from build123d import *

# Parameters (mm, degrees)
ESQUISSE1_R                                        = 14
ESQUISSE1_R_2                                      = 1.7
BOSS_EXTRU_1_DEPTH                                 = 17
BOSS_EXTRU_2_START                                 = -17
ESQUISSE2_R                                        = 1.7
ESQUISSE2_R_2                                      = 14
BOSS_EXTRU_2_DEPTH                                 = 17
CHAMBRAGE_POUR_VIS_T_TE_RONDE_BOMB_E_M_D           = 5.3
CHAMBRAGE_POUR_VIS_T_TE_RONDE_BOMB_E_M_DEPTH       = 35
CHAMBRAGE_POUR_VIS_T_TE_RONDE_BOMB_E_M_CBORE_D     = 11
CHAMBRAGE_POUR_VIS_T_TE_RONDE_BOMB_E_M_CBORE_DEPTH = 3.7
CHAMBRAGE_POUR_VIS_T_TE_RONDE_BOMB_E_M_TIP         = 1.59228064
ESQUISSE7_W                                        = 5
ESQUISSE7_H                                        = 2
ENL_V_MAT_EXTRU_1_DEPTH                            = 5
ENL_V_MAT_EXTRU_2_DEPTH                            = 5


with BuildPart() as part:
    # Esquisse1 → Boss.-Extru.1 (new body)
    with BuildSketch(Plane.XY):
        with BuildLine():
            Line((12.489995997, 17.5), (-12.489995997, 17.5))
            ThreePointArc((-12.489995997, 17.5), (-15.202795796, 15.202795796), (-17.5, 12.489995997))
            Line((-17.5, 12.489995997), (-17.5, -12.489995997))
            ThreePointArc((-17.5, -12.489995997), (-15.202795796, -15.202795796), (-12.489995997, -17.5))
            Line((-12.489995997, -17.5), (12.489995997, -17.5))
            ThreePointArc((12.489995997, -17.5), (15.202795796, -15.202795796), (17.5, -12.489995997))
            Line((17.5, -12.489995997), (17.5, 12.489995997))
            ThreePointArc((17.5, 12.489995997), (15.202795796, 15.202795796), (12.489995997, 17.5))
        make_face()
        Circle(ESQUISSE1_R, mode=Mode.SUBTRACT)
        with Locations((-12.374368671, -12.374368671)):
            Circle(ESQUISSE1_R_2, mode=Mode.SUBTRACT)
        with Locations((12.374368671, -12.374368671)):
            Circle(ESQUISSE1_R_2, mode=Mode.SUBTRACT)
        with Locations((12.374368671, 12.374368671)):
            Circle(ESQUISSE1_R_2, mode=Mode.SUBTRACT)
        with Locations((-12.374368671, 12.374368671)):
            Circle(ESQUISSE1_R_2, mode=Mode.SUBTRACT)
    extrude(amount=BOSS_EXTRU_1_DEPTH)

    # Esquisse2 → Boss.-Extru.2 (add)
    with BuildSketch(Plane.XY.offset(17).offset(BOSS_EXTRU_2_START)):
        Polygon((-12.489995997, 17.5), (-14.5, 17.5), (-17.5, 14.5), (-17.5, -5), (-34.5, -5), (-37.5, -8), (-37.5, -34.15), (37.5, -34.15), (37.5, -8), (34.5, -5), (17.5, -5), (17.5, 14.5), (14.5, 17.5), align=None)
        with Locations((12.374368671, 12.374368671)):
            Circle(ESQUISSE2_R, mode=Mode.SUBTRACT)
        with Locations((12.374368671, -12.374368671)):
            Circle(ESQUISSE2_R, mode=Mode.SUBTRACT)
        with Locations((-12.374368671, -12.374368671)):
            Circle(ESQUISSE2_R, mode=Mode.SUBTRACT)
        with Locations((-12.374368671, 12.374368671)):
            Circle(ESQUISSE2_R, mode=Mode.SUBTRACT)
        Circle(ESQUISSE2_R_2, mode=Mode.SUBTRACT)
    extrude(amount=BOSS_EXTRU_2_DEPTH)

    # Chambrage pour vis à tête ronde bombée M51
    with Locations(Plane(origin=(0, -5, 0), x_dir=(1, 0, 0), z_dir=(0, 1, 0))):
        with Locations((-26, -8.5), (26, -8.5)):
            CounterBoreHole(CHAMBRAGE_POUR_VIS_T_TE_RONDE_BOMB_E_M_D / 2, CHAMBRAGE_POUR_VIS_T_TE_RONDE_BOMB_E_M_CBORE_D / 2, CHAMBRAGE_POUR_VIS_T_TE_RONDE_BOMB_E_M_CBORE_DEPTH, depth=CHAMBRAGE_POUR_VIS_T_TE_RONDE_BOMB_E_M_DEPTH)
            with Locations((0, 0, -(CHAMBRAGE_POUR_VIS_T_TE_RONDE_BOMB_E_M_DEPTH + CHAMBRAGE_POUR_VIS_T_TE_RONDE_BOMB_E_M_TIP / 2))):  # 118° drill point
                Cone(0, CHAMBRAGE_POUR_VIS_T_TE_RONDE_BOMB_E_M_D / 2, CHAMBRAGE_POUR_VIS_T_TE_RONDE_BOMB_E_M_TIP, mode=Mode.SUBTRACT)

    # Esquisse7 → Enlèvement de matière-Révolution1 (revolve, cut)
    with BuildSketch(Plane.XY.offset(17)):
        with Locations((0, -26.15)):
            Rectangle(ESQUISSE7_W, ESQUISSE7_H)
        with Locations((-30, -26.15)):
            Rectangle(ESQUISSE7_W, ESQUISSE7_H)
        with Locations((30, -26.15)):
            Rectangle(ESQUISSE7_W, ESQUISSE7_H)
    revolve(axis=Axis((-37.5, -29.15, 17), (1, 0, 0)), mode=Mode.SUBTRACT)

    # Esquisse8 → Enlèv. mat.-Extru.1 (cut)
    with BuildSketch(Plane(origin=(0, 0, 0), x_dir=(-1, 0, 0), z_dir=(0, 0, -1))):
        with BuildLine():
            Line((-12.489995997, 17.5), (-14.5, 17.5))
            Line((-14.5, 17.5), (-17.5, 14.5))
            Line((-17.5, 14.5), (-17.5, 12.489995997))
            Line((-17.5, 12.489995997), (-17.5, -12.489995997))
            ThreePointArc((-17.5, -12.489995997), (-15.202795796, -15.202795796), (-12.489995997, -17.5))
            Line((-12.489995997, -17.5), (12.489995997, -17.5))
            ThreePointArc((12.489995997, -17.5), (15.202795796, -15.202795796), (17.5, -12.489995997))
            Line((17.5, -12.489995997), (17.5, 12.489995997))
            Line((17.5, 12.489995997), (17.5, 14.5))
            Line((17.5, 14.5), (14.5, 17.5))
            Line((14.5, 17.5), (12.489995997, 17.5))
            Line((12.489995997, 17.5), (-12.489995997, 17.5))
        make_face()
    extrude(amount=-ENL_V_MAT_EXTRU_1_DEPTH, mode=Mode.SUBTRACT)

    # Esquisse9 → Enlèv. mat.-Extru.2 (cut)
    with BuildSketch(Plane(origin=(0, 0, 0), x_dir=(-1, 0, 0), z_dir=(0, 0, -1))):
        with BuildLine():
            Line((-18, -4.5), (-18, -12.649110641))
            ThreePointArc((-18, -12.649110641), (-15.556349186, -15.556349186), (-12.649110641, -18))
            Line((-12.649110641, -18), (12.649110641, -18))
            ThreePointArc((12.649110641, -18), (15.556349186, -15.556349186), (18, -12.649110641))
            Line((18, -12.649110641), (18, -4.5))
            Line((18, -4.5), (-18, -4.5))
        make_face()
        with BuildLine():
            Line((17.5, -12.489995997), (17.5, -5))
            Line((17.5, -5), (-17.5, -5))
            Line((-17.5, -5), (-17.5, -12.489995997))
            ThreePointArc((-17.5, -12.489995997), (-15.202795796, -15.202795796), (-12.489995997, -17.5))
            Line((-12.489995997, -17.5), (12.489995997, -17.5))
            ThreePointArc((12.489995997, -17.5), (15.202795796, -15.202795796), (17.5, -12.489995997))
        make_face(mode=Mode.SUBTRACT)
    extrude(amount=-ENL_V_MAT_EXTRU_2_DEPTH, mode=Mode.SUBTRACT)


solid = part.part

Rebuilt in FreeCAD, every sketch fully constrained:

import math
import FreeCAD as App
import Part
import Sketcher
from FreeCAD import Vector
Q = App.Units.Quantity


def add_polygon(sketch, points):
    """Adds a closed chain of lines whose ends are joined by coincident constraints."""
    first, n = sketch.GeometryCount, len(points)
    for a, b in zip(points, points[1:] + points[:1]):
        sketch.addGeometry(Part.LineSegment(App.Vector(*a, 0), App.Vector(*b, 0)), False)
    for i in range(n):
        sketch.addConstraint(Sketcher.Constraint("Coincident", first + i, 2, first + (i + 1) % n, 1))

doc = App.newDocument("Part")
body = doc.addObject("PartDesign::Body", "Body")

sketch1 = doc.addObject("Sketcher::SketchObject", "Sketch")
body.addObject(sketch1)
sketch1.AttachmentSupport = (doc.XY_Plane, [""])
sketch1.MapMode = "FlatFace"
sketch1.addGeometry([
    Part.LineSegment(Vector(12.5, 17.5, 0), Vector(-12.5, 17.5, 0)),
    Part.ArcOfCircle(Part.Circle(Vector(0, 0, 0), Vector(0, 0, 1), 21.5), math.radians(125.52), math.radians(144.48)),
    Part.LineSegment(Vector(-17.5, 12.5, 0), Vector(-17.5, -12.5, 0)),
    Part.ArcOfCircle(Part.Circle(Vector(0, 0, 0), Vector(0, 0, 1), 21.5), math.radians(-144.48), math.radians(-125.52)),
    Part.LineSegment(Vector(-12.5, -17.5, 0), Vector(12.5, -17.5, 0)),
    Part.ArcOfCircle(Part.Circle(Vector(0, 0, 0), Vector(0, 0, 1), 21.5), math.radians(-54.48), math.radians(-35.52)),
    Part.LineSegment(Vector(17.5, -12.5, 0), Vector(17.5, 12.5, 0)),
    Part.ArcOfCircle(Part.Circle(Vector(0, 0, 0), Vector(0, 0, 1), 21.5), math.radians(35.52), math.radians(54.48)),
    Part.Circle(Vector(-12.4, -12.4, 0), Vector(0, 0, 1), 1.7),
    Part.Circle(Vector(0, 0, 0), Vector(0, 0, 1), 14),
    Part.Circle(Vector(12.4, -12.4, 0), Vector(0, 0, 1), 1.7),
    Part.Circle(Vector(-12.4, 12.4, 0), Vector(0, 0, 1), 1.7),
    Part.Circle(Vector(12.4, 12.4, 0), Vector(0, 0, 1), 1.7),
], False)
sketch1.addConstraint([
    Sketcher.Constraint("Coincident", 0, 2, 1, 1),
    Sketcher.Constraint("Coincident", 1, 2, 2, 1),
    Sketcher.Constraint("Coincident", 2, 2, 3, 1),
    Sketcher.Constraint("Coincident", 3, 2, 4, 1),
    Sketcher.Constraint("Coincident", 4, 2, 5, 1),
    Sketcher.Constraint("Coincident", 5, 2, 6, 1),
    Sketcher.Constraint("Coincident", 6, 2, 7, 1),
    Sketcher.Constraint("Coincident", 7, 2, 0, 1),
    Sketcher.Constraint("Horizontal", 0),
    Sketcher.Constraint("Vertical", 2),
    Sketcher.Constraint("Horizontal", 4),
    Sketcher.Constraint("Vertical", 6),
    Sketcher.Constraint("Coincident", 1, 3, -1, 1),
    Sketcher.Constraint("Coincident", 3, 3, -1, 1),
    Sketcher.Constraint("Coincident", 5, 3, -1, 1),
    Sketcher.Constraint("Coincident", 7, 3, -1, 1),
    Sketcher.Constraint("Coincident", 9, 3, -1, 1),
    Sketcher.Constraint("Equal", 1, 3),
    Sketcher.Constraint("Equal", 3, 5),
    Sketcher.Constraint("Equal", 5, 7),
    Sketcher.Constraint("Equal", 8, 10),
    Sketcher.Constraint("Equal", 10, 11),
    Sketcher.Constraint("Equal", 11, 12),
    Sketcher.Constraint("Symmetric", 10, 3, 11, 3, -1, 1),
    Sketcher.Constraint("Symmetric", 8, 3, 12, 3, -1, 1),
    Sketcher.Constraint("Symmetric", 8, 3, 10, 3, -2),
    Sketcher.Constraint("Horizontal", 2, 2, 5, 2),
    Sketcher.Constraint("Vertical", 0, 2, 3, 2),
    Sketcher.Constraint("Equal", 4, 2),
    Sketcher.Constraint("Diameter", 9, Q("28 mm")),
    Sketcher.Constraint("Diameter", 8, Q("3.4 mm")),
    Sketcher.Constraint("Radius", 1, Q("21.5 mm")),
    Sketcher.Constraint("DistanceY", -1, 1, 0, 2, Q("17.5 mm")),
    Sketcher.Constraint("DistanceX", 8, 3, -1, 1, Q("12.374369 mm")),
    Sketcher.Constraint("DistanceY", 8, 3, -1, 1, Q("12.374369 mm")),
])
pad1 = doc.addObject("PartDesign::Pad", "Pad")
body.addObject(pad1)
pad1.Profile = sketch1
pad1.Length = 17

sketch2 = doc.addObject("Sketcher::SketchObject", "Sketch001")
body.addObject(sketch2)
sketch2.AttachmentSupport = (doc.XY_Plane, [""])
sketch2.MapMode = "FlatFace"
add_polygon(sketch2, [(-14.5, 17.5), (-17.5, 14.5), (-17.5, -5), (-34.5, -5), (-37.5, -8), (-37.5, -34.1), (37.5, -34.1), (37.5, -8), (34.5, -5), (17.5, -5), (17.5, 14.5), (14.5, 17.5)])
sketch2.addGeometry(Part.Circle(Vector(-12.4, -12.4, 0), Vector(0, 0, 1), 1.7), False)
sketch2.addGeometry(Part.Circle(Vector(0, 0, 0), Vector(0, 0, 1), 14), False)
sketch2.addGeometry(Part.Circle(Vector(12.4, -12.4, 0), Vector(0, 0, 1), 1.7), False)
sketch2.addGeometry(Part.Circle(Vector(-12.4, 12.4, 0), Vector(0, 0, 1), 1.7), False)
sketch2.addGeometry(Part.Circle(Vector(12.4, 12.4, 0), Vector(0, 0, 1), 1.7), False)
sketch2.addConstraint([
    Sketcher.Constraint("Vertical", 1),
    Sketcher.Constraint("Horizontal", 2),
    Sketcher.Constraint("Vertical", 4),
    Sketcher.Constraint("Horizontal", 5),
    Sketcher.Constraint("Vertical", 6),
    Sketcher.Constraint("Horizontal", 8),
    Sketcher.Constraint("Vertical", 9),
    Sketcher.Constraint("Horizontal", 11),
    Sketcher.Constraint("Coincident", 13, 3, -1, 1),
    Sketcher.Constraint("Equal", 12, 14),
    Sketcher.Constraint("Equal", 14, 15),
    Sketcher.Constraint("Equal", 15, 16),
    Sketcher.Constraint("Symmetric", 14, 3, 15, 3, -1, 1),
    Sketcher.Constraint("Symmetric", 12, 3, 16, 3, -1, 1),
    Sketcher.Constraint("Symmetric", 12, 3, 14, 3, -2),
    Sketcher.Constraint("Symmetric", 3, 2, 6, 2, -2),
    Sketcher.Constraint("Symmetric", 2, 2, 7, 2, -2),
    Sketcher.Constraint("Symmetric", 0, 2, 9, 2, -2),
    Sketcher.Constraint("Parallel", 0, 3),
    Sketcher.Constraint("Perpendicular", 3, 7),
    Sketcher.Constraint("Parallel", 7, 10),
    Sketcher.Constraint("Equal", 0, 3),
    Sketcher.Constraint("Diameter", 13, Q("28 mm")),
    Sketcher.Constraint("Diameter", 12, Q("3.4 mm")),
    Sketcher.Constraint("DistanceX", 2, 2, 2, 1, Q("17 mm")),
    Sketcher.Constraint("DistanceX", 5, 1, 5, 2, Q("75 mm")),
    Sketcher.Constraint("DistanceX", 11, 2, 11, 1, Q("29 mm")),
    Sketcher.Constraint("DistanceY", 1, 2, 1, 1, Q("19.5 mm")),
    Sketcher.Constraint("DistanceY", 1, 2, -1, 1, Q("5 mm")),
    Sketcher.Constraint("DistanceY", 4, 2, 4, 1, Q("26.15 mm")),
    Sketcher.Constraint("DistanceX", 12, 3, -1, 1, Q("12.374369 mm")),
    Sketcher.Constraint("DistanceY", 12, 3, -1, 1, Q("12.374369 mm")),
])
pad2 = doc.addObject("PartDesign::Pad", "Pad001")
body.addObject(pad2)
pad2.Profile = sketch2
pad2.Length = 17

sketch3 = doc.addObject("Sketcher::SketchObject", "Sketch002")
body.addObject(sketch3)
sketch3.AttachmentSupport = (doc.XZ_Plane, [""])
sketch3.MapMode = "FlatFace"
sketch3.AttachmentOffset = App.Placement(Vector(0, 0, 5), App.Rotation())
sketch3.addGeometry([
    Part.Circle(Vector(-26, 8.5, 0), Vector(0, 0, 1), 2.6),
    Part.Circle(Vector(26, 8.5, 0), Vector(0, 0, 1), 2.6),
], False)
sketch3.addConstraint([
    Sketcher.Constraint("Equal", 0, 1),
    Sketcher.Constraint("Symmetric", 0, 3, 1, 3, -2),
    Sketcher.Constraint("Diameter", 0, Q("5.3 mm")),
    Sketcher.Constraint("DistanceX", 0, 3, -1, 1, Q("26 mm")),
    Sketcher.Constraint("DistanceY", -1, 1, 0, 3, Q("8.5 mm")),
])
doc.recompute()
hole = doc.addObject("PartDesign::Hole", "Hole")
body.addObject(hole)
hole.Profile = sketch3
hole.ThreadType = "None"
hole.Diameter = 5.3
hole.DepthType = "Dimension"
hole.Depth = 35
hole.DrillPoint = "Angled"
hole.DrillPointAngle = 118
hole.HoleCutType = "Counterbore"
hole.HoleCutDiameter = 11
hole.HoleCutDepth = 3.7
hole.Reversed = True

sketch4 = doc.addObject("Sketcher::SketchObject", "Sketch003")
body.addObject(sketch4)
sketch4.AttachmentSupport = (doc.XY_Plane, [""])
sketch4.MapMode = "FlatFace"
sketch4.AttachmentOffset = App.Placement(Vector(0, 0, 17), App.Rotation())
add_polygon(sketch4, [(-2.5, -25.1), (-2.5, -27.1), (2.5, -27.1), (2.5, -25.1)])
add_polygon(sketch4, [(-32.5, -25.1), (-32.5, -27.1), (-27.5, -27.1), (-27.5, -25.1)])
add_polygon(sketch4, [(27.5, -25.1), (27.5, -27.1), (32.5, -27.1), (32.5, -25.1)])
sketch4.addGeometry(Part.LineSegment(Vector(-32.5, -29.1, 0), Vector(32.5, -29.1, 0)), True)
sketch4.addConstraint([
    Sketcher.Constraint("Vertical", 0),
    Sketcher.Constraint("Horizontal", 1),
    Sketcher.Constraint("Vertical", 2),
    Sketcher.Constraint("Horizontal", 3),
    Sketcher.Constraint("Vertical", 4),
    Sketcher.Constraint("Horizontal", 5),
    Sketcher.Constraint("Vertical", 6),
    Sketcher.Constraint("Horizontal", 7),
    Sketcher.Constraint("Vertical", 8),
    Sketcher.Constraint("Horizontal", 9),
    Sketcher.Constraint("Vertical", 10),
    Sketcher.Constraint("Horizontal", 11),
    Sketcher.Constraint("Horizontal", 12),
    Sketcher.Constraint("Symmetric", 5, 2, 8, 2, -2),
    Sketcher.Constraint("Symmetric", 7, 2, 10, 2, -2),
    Sketcher.Constraint("Horizontal", 1, 2, 4, 2),
    Sketcher.Constraint("Horizontal", 3, 2, 6, 2),
    Sketcher.Constraint("Vertical", 7, 2, 12, 1),
    Sketcher.Constraint("Vertical", 10, 2, 12, 2),
    Sketcher.Constraint("Equal", 3, 5),
    Sketcher.Constraint("DistanceX", 1, 1, 1, 2, Q("5 mm")),
    Sketcher.Constraint("DistanceX", 12, 1, 12, 2, Q("65 mm")),
    Sketcher.Constraint("DistanceY", 0, 2, 0, 1, Q("2 mm")),
    Sketcher.Constraint("DistanceX", 4, 2, 0, 2, Q("30 mm")),
    Sketcher.Constraint("DistanceY", 12, 1, 4, 2, Q("2 mm")),
    Sketcher.Constraint("DistanceY", 0, 2, -1, 1, Q("27.15 mm")),
])
groove = doc.addObject("PartDesign::Groove", "Groove")
body.addObject(groove)
groove.Profile = sketch4
groove.ReferenceAxis = (sketch4, ["Axis0"])
groove.Angle = 360

sketch5 = doc.addObject("Sketcher::SketchObject", "Sketch004")
body.addObject(sketch5)
sketch5.AttachmentSupport = (doc.XY_Plane, [""])
sketch5.MapMode = "FlatFace"
sketch5.addGeometry([
    Part.LineSegment(Vector(14.5, 17.5, 0), Vector(17.5, 14.5, 0)),
    Part.LineSegment(Vector(17.5, 14.5, 0), Vector(17.5, -12.5, 0)),
    Part.ArcOfCircle(Part.Circle(Vector(0, 0, 0), Vector(0, 0, 1), 21.5), math.radians(-54.48), math.radians(-35.52)),
    Part.LineSegment(Vector(12.5, -17.5, 0), Vector(-12.5, -17.5, 0)),
    Part.ArcOfCircle(Part.Circle(Vector(0, 0, 0), Vector(0, 0, 1), 21.5), math.radians(-144.48), math.radians(-125.52)),
    Part.LineSegment(Vector(-17.5, -12.5, 0), Vector(-17.5, 14.5, 0)),
    Part.LineSegment(Vector(-17.5, 14.5, 0), Vector(-14.5, 17.5, 0)),
    Part.LineSegment(Vector(-14.5, 17.5, 0), Vector(14.5, 17.5, 0)),
], False)
sketch5.addConstraint([
    Sketcher.Constraint("Coincident", 0, 2, 1, 1),
    Sketcher.Constraint("Coincident", 1, 2, 2, 2),
    Sketcher.Constraint("Coincident", 2, 1, 3, 1),
    Sketcher.Constraint("Coincident", 3, 2, 4, 2),
    Sketcher.Constraint("Coincident", 4, 1, 5, 1),
    Sketcher.Constraint("Coincident", 5, 2, 6, 1),
    Sketcher.Constraint("Coincident", 6, 2, 7, 1),
    Sketcher.Constraint("Coincident", 7, 2, 0, 1),
    Sketcher.Constraint("Vertical", 1),
    Sketcher.Constraint("Horizontal", 3),
    Sketcher.Constraint("Vertical", 5),
    Sketcher.Constraint("Horizontal", 7),
    Sketcher.Constraint("Coincident", 2, 3, -1, 1),
    Sketcher.Constraint("Coincident", 4, 3, -1, 1),
    Sketcher.Constraint("Equal", 2, 4),
    Sketcher.Constraint("Symmetric", 0, 2, 5, 2, -2),
    Sketcher.Constraint("Perpendicular", 0, 6),
    Sketcher.Constraint("Equal", 0, 6),
    Sketcher.Constraint("Radius", 2, Q("21.5 mm")),
    Sketcher.Constraint("DistanceX", 7, 1, 7, 2, Q("29 mm")),
    Sketcher.Constraint("DistanceY", 2, 1, 0, 2, Q("32 mm")),
    Sketcher.Constraint("DistanceX", 4, 1, 1, 2, Q("35 mm")),
    Sketcher.Constraint("DistanceY", -1, 1, 0, 2, Q("14.5 mm")),
])
pocket1 = doc.addObject("PartDesign::Pocket", "Pocket")
body.addObject(pocket1)
pocket1.Profile = sketch5
pocket1.Length = 5
pocket1.Reversed = True

sketch6 = doc.addObject("Sketcher::SketchObject", "Sketch005")
body.addObject(sketch6)
sketch6.AttachmentSupport = (doc.XY_Plane, [""])
sketch6.MapMode = "FlatFace"
sketch6.addGeometry([
    Part.LineSegment(Vector(18, -4, 0), Vector(18, -13, 0)),
    Part.ArcOfCircle(Part.Circle(Vector(0, 0, 0), Vector(0, 0, 1), 22), math.radians(-54.9), math.radians(-35.1)),
    Part.LineSegment(Vector(13, -18, 0), Vector(-13, -18, 0)),
    Part.ArcOfCircle(Part.Circle(Vector(0, 0, 0), Vector(0, 0, 1), 22), math.radians(-144.9), math.radians(-125.1)),
    Part.LineSegment(Vector(-18, -13, 0), Vector(-18, -4, 0)),
    Part.LineSegment(Vector(-18, -4, 0), Vector(18, -4, 0)),
    Part.LineSegment(Vector(-18, -5, 0), Vector(-18, -12, 0)),
    Part.ArcOfCircle(Part.Circle(Vector(0, 0, 0), Vector(0, 0, 1), 21), math.radians(-144.48), math.radians(-125.52)),
    Part.LineSegment(Vector(-12, -18, 0), Vector(12, -18, 0)),
    Part.ArcOfCircle(Part.Circle(Vector(0, 0, 0), Vector(0, 0, 1), 21), math.radians(-54.48), math.radians(-35.52)),
    Part.LineSegment(Vector(18, -12, 0), Vector(18, -5, 0)),
    Part.LineSegment(Vector(18, -5, 0), Vector(-18, -5, 0)),
], False)
sketch6.addConstraint([
    Sketcher.Constraint("Coincident", 0, 2, 1, 2),
    Sketcher.Constraint("Coincident", 1, 1, 2, 1),
    Sketcher.Constraint("Coincident", 2, 2, 3, 2),
    Sketcher.Constraint("Coincident", 3, 1, 4, 1),
    Sketcher.Constraint("Coincident", 4, 2, 5, 1),
    Sketcher.Constraint("Coincident", 5, 2, 0, 1),
    Sketcher.Constraint("Coincident", 6, 2, 7, 1),
    Sketcher.Constraint("Coincident", 7, 2, 8, 1),
    Sketcher.Constraint("Coincident", 8, 2, 9, 1),
    Sketcher.Constraint("Coincident", 9, 2, 10, 1),
    Sketcher.Constraint("Coincident", 10, 2, 11, 1),
    Sketcher.Constraint("Coincident", 11, 2, 6, 1),
    Sketcher.Constraint("Vertical", 0),
    Sketcher.Constraint("Horizontal", 2),
    Sketcher.Constraint("Vertical", 4),
    Sketcher.Constraint("Horizontal", 5),
    Sketcher.Constraint("Vertical", 6),
    Sketcher.Constraint("Horizontal", 8),
    Sketcher.Constraint("Vertical", 10),
    Sketcher.Constraint("Horizontal", 11),
    Sketcher.Constraint("Coincident", 1, 3, -1, 1),
    Sketcher.Constraint("Coincident", 3, 3, -1, 1),
    Sketcher.Constraint("Coincident", 7, 3, -1, 1),
    Sketcher.Constraint("Coincident", 9, 3, -1, 1),
    Sketcher.Constraint("Equal", 1, 3),
    Sketcher.Constraint("Equal", 7, 9),
    Sketcher.Constraint("Horizontal", 0, 2, 3, 1),
    Sketcher.Constraint("Horizontal", 6, 2, 9, 2),
    Sketcher.Constraint("Radius", 1, Q("22 mm")),
    Sketcher.Constraint("Radius", 7, Q("21.5 mm")),
    Sketcher.Constraint("DistanceX", 5, 1, 5, 2, Q("36 mm")),
    Sketcher.Constraint("DistanceX", 11, 2, 11, 1, Q("35 mm")),
    Sketcher.Constraint("DistanceY", 1, 1, -1, 1, Q("18 mm")),
    Sketcher.Constraint("DistanceY", 10, 2, -1, 1, Q("5 mm")),
    Sketcher.Constraint("DistanceY", 7, 2, 4, 2, Q("13 mm")),
    Sketcher.Constraint("DistanceY", 4, 2, -1, 1, Q("4.5 mm")),
])
pocket2 = doc.addObject("PartDesign::Pocket", "Pocket001")
body.addObject(pocket2)
pocket2.Profile = sketch6
pocket2.Length = 5
pocket2.Reversed = True

doc.recompute()
